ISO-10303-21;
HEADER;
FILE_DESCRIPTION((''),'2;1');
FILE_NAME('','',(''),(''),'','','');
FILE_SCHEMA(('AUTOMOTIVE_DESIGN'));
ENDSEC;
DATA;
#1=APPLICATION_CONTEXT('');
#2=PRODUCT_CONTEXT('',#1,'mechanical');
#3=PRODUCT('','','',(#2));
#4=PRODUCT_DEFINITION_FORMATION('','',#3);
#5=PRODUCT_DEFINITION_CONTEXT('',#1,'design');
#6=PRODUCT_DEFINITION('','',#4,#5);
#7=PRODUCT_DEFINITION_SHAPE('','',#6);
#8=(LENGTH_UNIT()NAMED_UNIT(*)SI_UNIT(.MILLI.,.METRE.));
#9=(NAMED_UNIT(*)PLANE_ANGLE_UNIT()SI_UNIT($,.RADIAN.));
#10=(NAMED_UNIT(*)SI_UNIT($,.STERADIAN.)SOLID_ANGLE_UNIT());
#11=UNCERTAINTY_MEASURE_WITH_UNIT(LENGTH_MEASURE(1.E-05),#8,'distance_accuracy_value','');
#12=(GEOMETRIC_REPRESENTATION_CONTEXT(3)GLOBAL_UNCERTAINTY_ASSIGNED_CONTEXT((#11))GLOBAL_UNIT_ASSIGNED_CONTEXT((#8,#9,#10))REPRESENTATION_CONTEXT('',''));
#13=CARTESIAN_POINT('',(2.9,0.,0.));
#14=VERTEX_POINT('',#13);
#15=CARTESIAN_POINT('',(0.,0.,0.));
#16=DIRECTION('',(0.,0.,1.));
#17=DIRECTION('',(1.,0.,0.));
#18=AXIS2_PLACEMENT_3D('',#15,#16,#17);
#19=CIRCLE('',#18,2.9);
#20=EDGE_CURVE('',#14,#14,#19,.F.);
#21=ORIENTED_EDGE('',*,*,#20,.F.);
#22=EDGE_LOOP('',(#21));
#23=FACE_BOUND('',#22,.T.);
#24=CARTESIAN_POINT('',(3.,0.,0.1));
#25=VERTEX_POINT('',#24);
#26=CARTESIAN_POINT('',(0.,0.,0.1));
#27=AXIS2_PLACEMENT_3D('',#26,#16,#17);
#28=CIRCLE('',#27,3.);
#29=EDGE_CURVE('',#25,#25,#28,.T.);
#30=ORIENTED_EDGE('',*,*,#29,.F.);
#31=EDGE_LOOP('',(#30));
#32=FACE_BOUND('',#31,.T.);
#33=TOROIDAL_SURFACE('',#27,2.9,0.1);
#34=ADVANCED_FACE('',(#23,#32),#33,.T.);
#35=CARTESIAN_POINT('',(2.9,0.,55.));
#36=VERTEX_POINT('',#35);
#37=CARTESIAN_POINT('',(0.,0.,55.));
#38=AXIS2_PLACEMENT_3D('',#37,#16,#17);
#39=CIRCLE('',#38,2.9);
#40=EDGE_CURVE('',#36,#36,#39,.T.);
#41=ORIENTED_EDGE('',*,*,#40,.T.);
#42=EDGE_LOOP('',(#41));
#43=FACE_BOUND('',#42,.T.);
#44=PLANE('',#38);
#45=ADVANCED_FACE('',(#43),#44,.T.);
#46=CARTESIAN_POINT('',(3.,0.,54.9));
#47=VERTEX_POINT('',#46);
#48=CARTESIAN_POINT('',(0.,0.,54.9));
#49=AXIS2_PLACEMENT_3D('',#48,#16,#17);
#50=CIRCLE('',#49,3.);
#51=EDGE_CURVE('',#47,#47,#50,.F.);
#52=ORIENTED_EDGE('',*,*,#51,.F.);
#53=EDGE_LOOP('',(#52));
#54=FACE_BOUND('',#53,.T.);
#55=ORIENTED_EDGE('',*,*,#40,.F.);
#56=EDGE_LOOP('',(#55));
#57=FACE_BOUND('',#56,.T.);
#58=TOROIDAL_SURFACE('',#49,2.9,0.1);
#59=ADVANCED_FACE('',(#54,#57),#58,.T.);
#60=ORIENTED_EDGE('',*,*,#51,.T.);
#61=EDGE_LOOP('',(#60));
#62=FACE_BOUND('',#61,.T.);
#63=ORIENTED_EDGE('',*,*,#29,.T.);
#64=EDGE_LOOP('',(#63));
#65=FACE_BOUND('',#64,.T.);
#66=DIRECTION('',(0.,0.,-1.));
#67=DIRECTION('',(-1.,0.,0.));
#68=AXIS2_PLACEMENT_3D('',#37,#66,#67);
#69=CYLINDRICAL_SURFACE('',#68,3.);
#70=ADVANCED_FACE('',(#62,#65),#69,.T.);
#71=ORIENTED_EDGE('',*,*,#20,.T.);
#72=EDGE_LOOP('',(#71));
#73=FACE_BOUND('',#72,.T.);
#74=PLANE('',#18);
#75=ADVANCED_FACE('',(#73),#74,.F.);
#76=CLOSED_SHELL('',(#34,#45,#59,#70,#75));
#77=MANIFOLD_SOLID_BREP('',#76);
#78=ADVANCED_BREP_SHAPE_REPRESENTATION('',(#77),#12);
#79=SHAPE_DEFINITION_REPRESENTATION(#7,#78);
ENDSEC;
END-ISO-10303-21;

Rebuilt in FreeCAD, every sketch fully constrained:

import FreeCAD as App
import Part
import Sketcher

V = App.Vector


def edges_at(feature, points):
    """Names of the edges that pass closest to the given points."""
    edges = feature.Shape.Edges
    near = lambda p: min(range(len(edges)), key=lambda i: edges[i].distToShape(Part.Vertex(*p))[0])
    return sorted({f"Edge{near(p) + 1}" for p in points})

doc = App.newDocument("Part")
body = doc.addObject("PartDesign::Body", "Body")

# Sketch on XY plane
sketch1 = body.newObject("Sketcher::SketchObject", "Sketch")
sketch1.AttachmentSupport = (doc.getObject("XY_Plane"), [""])
sketch1.MapMode = "FlatFace"
sketch1.addGeometry(Part.Circle(V(0, 0, 0), V(0, 0, 1), 3), False)
sketch1.addConstraint(Sketcher.Constraint("Coincident", 0, 3, -1, 1))
sketch1.addConstraint(Sketcher.Constraint("Diameter", 0, 6.0))
pad1 = body.newObject("PartDesign::Pad", "Pad")
pad1.Profile = sketch1
pad1.Length = 55
doc.recompute()

fillet = body.newObject("PartDesign::Fillet", "Fillet")
fillet.Base = (pad1, edges_at(pad1, [(-3, 0, 0), (-3, 0, 55)]))
fillet.Radius = 0.1

doc.recompute()
